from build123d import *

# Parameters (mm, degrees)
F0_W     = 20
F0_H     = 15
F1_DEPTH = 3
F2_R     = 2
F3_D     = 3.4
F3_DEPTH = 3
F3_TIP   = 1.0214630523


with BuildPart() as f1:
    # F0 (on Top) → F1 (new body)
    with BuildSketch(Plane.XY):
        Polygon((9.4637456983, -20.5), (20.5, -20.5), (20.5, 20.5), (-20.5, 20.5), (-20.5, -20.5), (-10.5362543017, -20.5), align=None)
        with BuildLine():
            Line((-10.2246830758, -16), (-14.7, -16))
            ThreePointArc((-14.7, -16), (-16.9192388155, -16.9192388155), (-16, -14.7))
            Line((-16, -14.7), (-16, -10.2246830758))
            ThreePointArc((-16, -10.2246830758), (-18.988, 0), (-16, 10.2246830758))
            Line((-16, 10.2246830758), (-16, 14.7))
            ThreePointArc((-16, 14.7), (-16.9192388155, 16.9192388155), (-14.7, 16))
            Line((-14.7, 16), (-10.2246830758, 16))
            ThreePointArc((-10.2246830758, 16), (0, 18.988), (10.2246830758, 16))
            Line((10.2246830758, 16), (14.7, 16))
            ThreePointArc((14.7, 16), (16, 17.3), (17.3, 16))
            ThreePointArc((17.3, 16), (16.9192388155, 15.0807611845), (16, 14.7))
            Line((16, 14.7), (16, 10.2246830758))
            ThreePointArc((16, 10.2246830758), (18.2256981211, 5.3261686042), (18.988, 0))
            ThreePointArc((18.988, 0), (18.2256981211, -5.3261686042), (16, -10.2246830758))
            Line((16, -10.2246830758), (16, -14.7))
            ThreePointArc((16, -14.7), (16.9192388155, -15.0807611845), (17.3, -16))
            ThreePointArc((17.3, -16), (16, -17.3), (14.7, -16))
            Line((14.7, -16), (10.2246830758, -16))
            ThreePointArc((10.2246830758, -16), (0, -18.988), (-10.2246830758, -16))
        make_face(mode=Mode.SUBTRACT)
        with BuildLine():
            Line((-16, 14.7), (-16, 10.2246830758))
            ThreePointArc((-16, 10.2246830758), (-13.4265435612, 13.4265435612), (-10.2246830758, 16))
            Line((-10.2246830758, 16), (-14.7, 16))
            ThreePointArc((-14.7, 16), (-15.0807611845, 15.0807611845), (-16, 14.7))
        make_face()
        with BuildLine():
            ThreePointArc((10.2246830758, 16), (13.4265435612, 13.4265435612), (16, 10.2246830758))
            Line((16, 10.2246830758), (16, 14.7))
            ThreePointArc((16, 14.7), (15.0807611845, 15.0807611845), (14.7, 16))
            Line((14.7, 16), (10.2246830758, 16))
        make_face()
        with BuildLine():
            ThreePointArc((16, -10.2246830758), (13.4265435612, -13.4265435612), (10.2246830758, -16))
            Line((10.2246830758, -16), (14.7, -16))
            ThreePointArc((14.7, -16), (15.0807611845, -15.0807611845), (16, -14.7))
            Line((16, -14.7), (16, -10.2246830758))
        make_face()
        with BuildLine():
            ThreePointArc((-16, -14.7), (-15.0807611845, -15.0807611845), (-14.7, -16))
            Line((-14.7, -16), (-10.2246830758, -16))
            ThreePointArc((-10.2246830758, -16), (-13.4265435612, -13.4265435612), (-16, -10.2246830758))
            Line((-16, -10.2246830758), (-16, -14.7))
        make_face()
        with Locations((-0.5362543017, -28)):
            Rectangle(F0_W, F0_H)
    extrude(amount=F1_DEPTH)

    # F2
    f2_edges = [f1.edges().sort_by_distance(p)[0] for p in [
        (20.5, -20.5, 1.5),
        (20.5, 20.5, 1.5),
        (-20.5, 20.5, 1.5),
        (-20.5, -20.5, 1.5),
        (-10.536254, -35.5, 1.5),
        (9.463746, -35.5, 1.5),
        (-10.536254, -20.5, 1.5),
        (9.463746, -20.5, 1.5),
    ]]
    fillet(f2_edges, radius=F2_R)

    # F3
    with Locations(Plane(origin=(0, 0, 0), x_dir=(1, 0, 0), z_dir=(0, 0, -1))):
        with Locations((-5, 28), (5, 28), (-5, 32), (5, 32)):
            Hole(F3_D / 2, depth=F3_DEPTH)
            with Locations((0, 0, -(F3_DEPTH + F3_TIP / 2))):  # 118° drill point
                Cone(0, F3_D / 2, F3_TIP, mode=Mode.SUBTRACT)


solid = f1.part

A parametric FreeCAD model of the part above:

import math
import FreeCAD as App
import Part
import Sketcher

V = App.Vector
Q = App.Units.Quantity


def edges_at(feature, points):
    """Names of the edges that pass closest to the given points."""
    edges = feature.Shape.Edges
    near = lambda p: min(range(len(edges)), key=lambda i: edges[i].distToShape(Part.Vertex(*p))[0])
    return sorted({f"Edge{near(p) + 1}" for p in points})


def add_polygon(sketch, points):
    """Adds a closed chain of lines whose ends are joined by coincident constraints."""
    first, n = sketch.GeometryCount, len(points)
    for a, b in zip(points, points[1:] + points[:1]):
        sketch.addGeometry(Part.LineSegment(App.Vector(*a, 0), App.Vector(*b, 0)), False)
    for i in range(n):
        sketch.addConstraint(Sketcher.Constraint("Coincident", first + i, 2, first + (i + 1) % n, 1))

doc = App.newDocument("Part")
body = doc.addObject("PartDesign::Body", "Body")

# Sketch on XY plane
sketch1 = doc.addObject("Sketcher::SketchObject", "Sketch")
body.addObject(sketch1)
sketch1.AttachmentSupport = (doc.XY_Plane, [""])
sketch1.MapMode = "FlatFace"
add_polygon(sketch1, [(20.5, -20.5), (20.5, 20.5), (-20.5, 20.5), (-20.5, -20.5), (-10.5, -20.5), (-10.5, -35.5), (9.5, -35.5), (9.5, -20.5)])  # lines 0-7
sketch1.addGeometry(Part.ArcOfCircle(Part.Circle(V(0, 0, 0), V(0, 0, 1), 19), math.radians(-123), math.radians(-57)), False)  # 8
sketch1.addGeometry(Part.ArcOfCircle(Part.Circle(V(0, 0, 0), V(0, 0, 1), 19), math.radians(-147), math.radians(-123)), False)  # 9
sketch1.addGeometry(Part.ArcOfCircle(Part.Circle(V(0, 0, 0), V(0, 0, 1), 19), math.radians(147), math.radians(213)), False)  # 10
sketch1.addGeometry(Part.ArcOfCircle(Part.Circle(V(0, 0, 0), V(0, 0, 1), 19), math.radians(123), math.radians(147)), False)  # 11
sketch1.addGeometry(Part.ArcOfCircle(Part.Circle(V(0, 0, 0), V(0, 0, 1), 19), math.radians(57), math.radians(123)), False)  # 12
sketch1.addGeometry(Part.ArcOfCircle(Part.Circle(V(0, 0, 0), V(0, 0, 1), 19), math.radians(33), math.radians(57)), False)  # 13
sketch1.addGeometry(Part.ArcOfCircle(Part.Circle(V(0, 0, 0), V(0, 0, 1), 19), math.radians(0), math.radians(33)), False)  # 14
sketch1.addGeometry(Part.ArcOfCircle(Part.Circle(V(0, 0, 0), V(0, 0, 1), 19), math.radians(-33), math.radians(0)), False)  # 15
sketch1.addGeometry(Part.ArcOfCircle(Part.Circle(V(0, 0, 0), V(0, 0, 1), 19), math.radians(-57), math.radians(-33)), False)  # 16
sketch1.addGeometry(Part.ArcOfCircle(Part.Circle(V(-16, -16, 0), V(0, 0, 1), 1.3), math.radians(90), math.radians(360)), False)  # 17
sketch1.addGeometry(Part.ArcOfCircle(Part.Circle(V(-16, -16, 0), V(0, 0, 1), 1.3), math.radians(0), math.radians(90)), False)  # 18
sketch1.addGeometry(Part.ArcOfCircle(Part.Circle(V(16, -16, 0), V(0, 0, 1), 1.3), math.radians(0), math.radians(90)), False)  # 19
sketch1.addGeometry(Part.ArcOfCircle(Part.Circle(V(16, -16, 0), V(0, 0, 1), 1.3), math.radians(180), math.radians(360)), False)  # 20
sketch1.addGeometry(Part.ArcOfCircle(Part.Circle(V(16, -16, 0), V(0, 0, 1), 1.3), math.radians(90), math.radians(180)), False)  # 21
sketch1.addGeometry(Part.ArcOfCircle(Part.Circle(V(16, 16, 0), V(0, 0, 1), 1.3), math.radians(0), math.radians(180)), False)  # 22
sketch1.addGeometry(Part.ArcOfCircle(Part.Circle(V(16, 16, 0), V(0, 0, 1), 1.3), math.radians(-90), math.radians(0)), False)  # 23
sketch1.addGeometry(Part.ArcOfCircle(Part.Circle(V(16, 16, 0), V(0, 0, 1), 1.3), math.radians(180), math.radians(270)), False)  # 24
sketch1.addGeometry(Part.ArcOfCircle(Part.Circle(V(-16, 16, 0), V(0, 0, 1), 1.3), math.radians(0), math.radians(270)), False)  # 25
sketch1.addGeometry(Part.ArcOfCircle(Part.Circle(V(-16, 16, 0), V(0, 0, 1), 1.3), math.radians(-90), math.radians(0)), False)  # 26
sketch1.addConstraint([
    Sketcher.Constraint("Tangent", 8, 1, 9, 2),
    Sketcher.Constraint("Tangent", 9, 1, 10, 2),
    Sketcher.Constraint("Tangent", 10, 1, 11, 2),
    Sketcher.Constraint("Tangent", 11, 1, 12, 2),
    Sketcher.Constraint("Tangent", 12, 1, 13, 2),
    Sketcher.Constraint("Tangent", 13, 1, 14, 2),
    Sketcher.Constraint("Tangent", 14, 1, 15, 2),
    Sketcher.Constraint("Tangent", 15, 1, 16, 2),
    Sketcher.Constraint("Tangent", 16, 1, 8, 2),
    Sketcher.Constraint("Tangent", 17, 1, 18, 2),
    Sketcher.Constraint("Coincident", 18, 1, 17, 2),
    Sketcher.Constraint("Tangent", 19, 1, 20, 2),
    Sketcher.Constraint("Tangent", 20, 1, 21, 2),
    Sketcher.Constraint("Tangent", 21, 1, 19, 2),
    Sketcher.Constraint("Tangent", 22, 1, 23, 2),
    Sketcher.Constraint("Tangent", 23, 1, 24, 2),
    Sketcher.Constraint("Tangent", 24, 1, 22, 2),
    Sketcher.Constraint("Tangent", 25, 1, 26, 2),
    Sketcher.Constraint("Coincident", 26, 1, 25, 2),
    Sketcher.Constraint("Vertical", 0),
    Sketcher.Constraint("Horizontal", 1),
    Sketcher.Constraint("Vertical", 2),
    Sketcher.Constraint("Horizontal", 3),
    Sketcher.Constraint("Vertical", 4),
    Sketcher.Constraint("Horizontal", 5),
    Sketcher.Constraint("Vertical", 6),
    Sketcher.Constraint("Horizontal", 7),
    Sketcher.Constraint("Coincident", 8, 3, -1, 1),
    Sketcher.Constraint("Coincident", 10, 3, -1, 1),
    Sketcher.Constraint("Coincident", 12, 3, -1, 1),
    Sketcher.Constraint("Coincident", 14, 3, -1, 1),
    Sketcher.Constraint("Equal", 18, 19),
    Sketcher.Constraint("Equal", 21, 22),
    Sketcher.Constraint("Equal", 24, 25),
    Sketcher.Constraint("Symmetric", 17, 3, 22, 3, -1, 1),
    Sketcher.Constraint("Symmetric", 19, 3, 25, 3, -1, 1),
    Sketcher.Constraint("Symmetric", 0, 2, 2, 2, -1, 1),
    Sketcher.Constraint("Symmetric", 17, 3, 19, 3, -2),
    Sketcher.Constraint("PointOnObject", 14, 1, -1),
    Sketcher.Constraint("Horizontal", 3, 2, 6, 2),
    Sketcher.Constraint("Horizontal", 21, 3, 8, 1),
    Sketcher.Constraint("Horizontal", 26, 3, 11, 1),
    Sketcher.Constraint("Horizontal", 11, 1, 12, 1),
    Sketcher.Constraint("Horizontal", 10, 1, 13, 1),
    Sketcher.Constraint("Horizontal", 9, 1, 15, 1),
    Sketcher.Constraint("Horizontal", 8, 1, 16, 1),
    Sketcher.Constraint("Horizontal", 16, 1, 18, 1),
    Sketcher.Constraint("Horizontal", 18, 1, 19, 1),
    Sketcher.Constraint("Horizontal", 19, 1, 20, 1),
    Sketcher.Constraint("Horizontal", 12, 1, 22, 1),
    Sketcher.Constraint("Horizontal", 22, 1, 24, 1),
    Sketcher.Constraint("Horizontal", 24, 1, 25, 1),
    Sketcher.Constraint("Vertical", 26, 3, 9, 1),
    Sketcher.Constraint("Vertical", 9, 1, 10, 1),
    Sketcher.Constraint("Vertical", 10, 1, 17, 1),
    Sketcher.Constraint("Vertical", 15, 1, 21, 1),
    Sketcher.Constraint("Vertical", 21, 1, 23, 1),
    Sketcher.Constraint("Vertical", 17, 1, 26, 1),
    Sketcher.Constraint("Equal", 1, 0),
    Sketcher.Constraint("Radius", 17, Q("1.3 mm")),
    Sketcher.Constraint("DistanceX", 1, 2, 1, 1, Q("41 mm")),
    Sketcher.Constraint("DistanceX", 5, 1, 5, 2, Q("20 mm")),
    Sketcher.Constraint("DistanceY", 4, 2, 4, 1, Q("15 mm")),
    Sketcher.Constraint("DistanceX", 17, 3, -1, 1, Q("16 mm")),
    Sketcher.Constraint("DistanceY", 17, 3, -1, 1, Q("16 mm")),
    Sketcher.Constraint("Radius", 8, Q("18.988 mm")),
    Sketcher.Constraint("DistanceX", 3, 1, 3, 2, Q("9.963746 mm")),
])
pad1 = doc.addObject("PartDesign::Pad", "Pad")
body.addObject(pad1)
pad1.Profile = sketch1
pad1.Length = 3
doc.recompute()

fillet = doc.addObject("PartDesign::Fillet", "Fillet")
body.addObject(fillet)
fillet.Base = (pad1, edges_at(pad1, [
    (20.5, -20.5, 1.5),
    (20.5, 20.5, 1.5),
    (-20.5, 20.5, 1.5),
    (-20.5, -20.5, 1.5),
    (-10.536, -35.5, 1.5),
    (9.464, -35.5, 1.5),
    (-10.536, -20.5, 1.5),
    (9.464, -20.5, 1.5),
]))
fillet.Radius = 2

# Sketch on XY plane
sketch2 = doc.addObject("Sketcher::SketchObject", "Sketch001")
body.addObject(sketch2)
sketch2.AttachmentSupport = (doc.XY_Plane, [""])
sketch2.MapMode = "FlatFace"
sketch2.addGeometry([
    Part.Circle(V(-5, -28, 0), V(0, 0, 1), 1.7),
    Part.Circle(V(5, -28, 0), V(0, 0, 1), 1.7),
    Part.Circle(V(-5, -32, 0), V(0, 0, 1), 1.7),
    Part.Circle(V(5, -32, 0), V(0, 0, 1), 1.7),
], False)
sketch2.addConstraint([
    Sketcher.Constraint("Equal", 0, 1),
    Sketcher.Constraint("Equal", 1, 2),
    Sketcher.Constraint("Equal", 2, 3),
    Sketcher.Constraint("Symmetric", 0, 3, 1, 3, -2),
    Sketcher.Constraint("Symmetric", 2, 3, 3, 3, -2),
    Sketcher.Constraint("Vertical", 0, 3, 2, 3),
    Sketcher.Constraint("Diameter", 0, Q("3.4 mm")),
    Sketcher.Constraint("DistanceX", 0, 3, -1, 1, Q("5 mm")),
    Sketcher.Constraint("DistanceY", 0, 3, -1, 1, Q("28 mm")),
    Sketcher.Constraint("DistanceY", 2, 3, -1, 1, Q("32 mm")),
])
doc.recompute()
hole = doc.addObject("PartDesign::Hole", "Hole")
body.addObject(hole)
hole.Profile = sketch2
hole.ThreadType = "None"
hole.Diameter = 3.4
hole.DepthType = "Dimension"
hole.Depth = 3
hole.DrillPoint = "Angled"
hole.DrillPointAngle = 118
hole.Reversed = True

doc.recompute()
